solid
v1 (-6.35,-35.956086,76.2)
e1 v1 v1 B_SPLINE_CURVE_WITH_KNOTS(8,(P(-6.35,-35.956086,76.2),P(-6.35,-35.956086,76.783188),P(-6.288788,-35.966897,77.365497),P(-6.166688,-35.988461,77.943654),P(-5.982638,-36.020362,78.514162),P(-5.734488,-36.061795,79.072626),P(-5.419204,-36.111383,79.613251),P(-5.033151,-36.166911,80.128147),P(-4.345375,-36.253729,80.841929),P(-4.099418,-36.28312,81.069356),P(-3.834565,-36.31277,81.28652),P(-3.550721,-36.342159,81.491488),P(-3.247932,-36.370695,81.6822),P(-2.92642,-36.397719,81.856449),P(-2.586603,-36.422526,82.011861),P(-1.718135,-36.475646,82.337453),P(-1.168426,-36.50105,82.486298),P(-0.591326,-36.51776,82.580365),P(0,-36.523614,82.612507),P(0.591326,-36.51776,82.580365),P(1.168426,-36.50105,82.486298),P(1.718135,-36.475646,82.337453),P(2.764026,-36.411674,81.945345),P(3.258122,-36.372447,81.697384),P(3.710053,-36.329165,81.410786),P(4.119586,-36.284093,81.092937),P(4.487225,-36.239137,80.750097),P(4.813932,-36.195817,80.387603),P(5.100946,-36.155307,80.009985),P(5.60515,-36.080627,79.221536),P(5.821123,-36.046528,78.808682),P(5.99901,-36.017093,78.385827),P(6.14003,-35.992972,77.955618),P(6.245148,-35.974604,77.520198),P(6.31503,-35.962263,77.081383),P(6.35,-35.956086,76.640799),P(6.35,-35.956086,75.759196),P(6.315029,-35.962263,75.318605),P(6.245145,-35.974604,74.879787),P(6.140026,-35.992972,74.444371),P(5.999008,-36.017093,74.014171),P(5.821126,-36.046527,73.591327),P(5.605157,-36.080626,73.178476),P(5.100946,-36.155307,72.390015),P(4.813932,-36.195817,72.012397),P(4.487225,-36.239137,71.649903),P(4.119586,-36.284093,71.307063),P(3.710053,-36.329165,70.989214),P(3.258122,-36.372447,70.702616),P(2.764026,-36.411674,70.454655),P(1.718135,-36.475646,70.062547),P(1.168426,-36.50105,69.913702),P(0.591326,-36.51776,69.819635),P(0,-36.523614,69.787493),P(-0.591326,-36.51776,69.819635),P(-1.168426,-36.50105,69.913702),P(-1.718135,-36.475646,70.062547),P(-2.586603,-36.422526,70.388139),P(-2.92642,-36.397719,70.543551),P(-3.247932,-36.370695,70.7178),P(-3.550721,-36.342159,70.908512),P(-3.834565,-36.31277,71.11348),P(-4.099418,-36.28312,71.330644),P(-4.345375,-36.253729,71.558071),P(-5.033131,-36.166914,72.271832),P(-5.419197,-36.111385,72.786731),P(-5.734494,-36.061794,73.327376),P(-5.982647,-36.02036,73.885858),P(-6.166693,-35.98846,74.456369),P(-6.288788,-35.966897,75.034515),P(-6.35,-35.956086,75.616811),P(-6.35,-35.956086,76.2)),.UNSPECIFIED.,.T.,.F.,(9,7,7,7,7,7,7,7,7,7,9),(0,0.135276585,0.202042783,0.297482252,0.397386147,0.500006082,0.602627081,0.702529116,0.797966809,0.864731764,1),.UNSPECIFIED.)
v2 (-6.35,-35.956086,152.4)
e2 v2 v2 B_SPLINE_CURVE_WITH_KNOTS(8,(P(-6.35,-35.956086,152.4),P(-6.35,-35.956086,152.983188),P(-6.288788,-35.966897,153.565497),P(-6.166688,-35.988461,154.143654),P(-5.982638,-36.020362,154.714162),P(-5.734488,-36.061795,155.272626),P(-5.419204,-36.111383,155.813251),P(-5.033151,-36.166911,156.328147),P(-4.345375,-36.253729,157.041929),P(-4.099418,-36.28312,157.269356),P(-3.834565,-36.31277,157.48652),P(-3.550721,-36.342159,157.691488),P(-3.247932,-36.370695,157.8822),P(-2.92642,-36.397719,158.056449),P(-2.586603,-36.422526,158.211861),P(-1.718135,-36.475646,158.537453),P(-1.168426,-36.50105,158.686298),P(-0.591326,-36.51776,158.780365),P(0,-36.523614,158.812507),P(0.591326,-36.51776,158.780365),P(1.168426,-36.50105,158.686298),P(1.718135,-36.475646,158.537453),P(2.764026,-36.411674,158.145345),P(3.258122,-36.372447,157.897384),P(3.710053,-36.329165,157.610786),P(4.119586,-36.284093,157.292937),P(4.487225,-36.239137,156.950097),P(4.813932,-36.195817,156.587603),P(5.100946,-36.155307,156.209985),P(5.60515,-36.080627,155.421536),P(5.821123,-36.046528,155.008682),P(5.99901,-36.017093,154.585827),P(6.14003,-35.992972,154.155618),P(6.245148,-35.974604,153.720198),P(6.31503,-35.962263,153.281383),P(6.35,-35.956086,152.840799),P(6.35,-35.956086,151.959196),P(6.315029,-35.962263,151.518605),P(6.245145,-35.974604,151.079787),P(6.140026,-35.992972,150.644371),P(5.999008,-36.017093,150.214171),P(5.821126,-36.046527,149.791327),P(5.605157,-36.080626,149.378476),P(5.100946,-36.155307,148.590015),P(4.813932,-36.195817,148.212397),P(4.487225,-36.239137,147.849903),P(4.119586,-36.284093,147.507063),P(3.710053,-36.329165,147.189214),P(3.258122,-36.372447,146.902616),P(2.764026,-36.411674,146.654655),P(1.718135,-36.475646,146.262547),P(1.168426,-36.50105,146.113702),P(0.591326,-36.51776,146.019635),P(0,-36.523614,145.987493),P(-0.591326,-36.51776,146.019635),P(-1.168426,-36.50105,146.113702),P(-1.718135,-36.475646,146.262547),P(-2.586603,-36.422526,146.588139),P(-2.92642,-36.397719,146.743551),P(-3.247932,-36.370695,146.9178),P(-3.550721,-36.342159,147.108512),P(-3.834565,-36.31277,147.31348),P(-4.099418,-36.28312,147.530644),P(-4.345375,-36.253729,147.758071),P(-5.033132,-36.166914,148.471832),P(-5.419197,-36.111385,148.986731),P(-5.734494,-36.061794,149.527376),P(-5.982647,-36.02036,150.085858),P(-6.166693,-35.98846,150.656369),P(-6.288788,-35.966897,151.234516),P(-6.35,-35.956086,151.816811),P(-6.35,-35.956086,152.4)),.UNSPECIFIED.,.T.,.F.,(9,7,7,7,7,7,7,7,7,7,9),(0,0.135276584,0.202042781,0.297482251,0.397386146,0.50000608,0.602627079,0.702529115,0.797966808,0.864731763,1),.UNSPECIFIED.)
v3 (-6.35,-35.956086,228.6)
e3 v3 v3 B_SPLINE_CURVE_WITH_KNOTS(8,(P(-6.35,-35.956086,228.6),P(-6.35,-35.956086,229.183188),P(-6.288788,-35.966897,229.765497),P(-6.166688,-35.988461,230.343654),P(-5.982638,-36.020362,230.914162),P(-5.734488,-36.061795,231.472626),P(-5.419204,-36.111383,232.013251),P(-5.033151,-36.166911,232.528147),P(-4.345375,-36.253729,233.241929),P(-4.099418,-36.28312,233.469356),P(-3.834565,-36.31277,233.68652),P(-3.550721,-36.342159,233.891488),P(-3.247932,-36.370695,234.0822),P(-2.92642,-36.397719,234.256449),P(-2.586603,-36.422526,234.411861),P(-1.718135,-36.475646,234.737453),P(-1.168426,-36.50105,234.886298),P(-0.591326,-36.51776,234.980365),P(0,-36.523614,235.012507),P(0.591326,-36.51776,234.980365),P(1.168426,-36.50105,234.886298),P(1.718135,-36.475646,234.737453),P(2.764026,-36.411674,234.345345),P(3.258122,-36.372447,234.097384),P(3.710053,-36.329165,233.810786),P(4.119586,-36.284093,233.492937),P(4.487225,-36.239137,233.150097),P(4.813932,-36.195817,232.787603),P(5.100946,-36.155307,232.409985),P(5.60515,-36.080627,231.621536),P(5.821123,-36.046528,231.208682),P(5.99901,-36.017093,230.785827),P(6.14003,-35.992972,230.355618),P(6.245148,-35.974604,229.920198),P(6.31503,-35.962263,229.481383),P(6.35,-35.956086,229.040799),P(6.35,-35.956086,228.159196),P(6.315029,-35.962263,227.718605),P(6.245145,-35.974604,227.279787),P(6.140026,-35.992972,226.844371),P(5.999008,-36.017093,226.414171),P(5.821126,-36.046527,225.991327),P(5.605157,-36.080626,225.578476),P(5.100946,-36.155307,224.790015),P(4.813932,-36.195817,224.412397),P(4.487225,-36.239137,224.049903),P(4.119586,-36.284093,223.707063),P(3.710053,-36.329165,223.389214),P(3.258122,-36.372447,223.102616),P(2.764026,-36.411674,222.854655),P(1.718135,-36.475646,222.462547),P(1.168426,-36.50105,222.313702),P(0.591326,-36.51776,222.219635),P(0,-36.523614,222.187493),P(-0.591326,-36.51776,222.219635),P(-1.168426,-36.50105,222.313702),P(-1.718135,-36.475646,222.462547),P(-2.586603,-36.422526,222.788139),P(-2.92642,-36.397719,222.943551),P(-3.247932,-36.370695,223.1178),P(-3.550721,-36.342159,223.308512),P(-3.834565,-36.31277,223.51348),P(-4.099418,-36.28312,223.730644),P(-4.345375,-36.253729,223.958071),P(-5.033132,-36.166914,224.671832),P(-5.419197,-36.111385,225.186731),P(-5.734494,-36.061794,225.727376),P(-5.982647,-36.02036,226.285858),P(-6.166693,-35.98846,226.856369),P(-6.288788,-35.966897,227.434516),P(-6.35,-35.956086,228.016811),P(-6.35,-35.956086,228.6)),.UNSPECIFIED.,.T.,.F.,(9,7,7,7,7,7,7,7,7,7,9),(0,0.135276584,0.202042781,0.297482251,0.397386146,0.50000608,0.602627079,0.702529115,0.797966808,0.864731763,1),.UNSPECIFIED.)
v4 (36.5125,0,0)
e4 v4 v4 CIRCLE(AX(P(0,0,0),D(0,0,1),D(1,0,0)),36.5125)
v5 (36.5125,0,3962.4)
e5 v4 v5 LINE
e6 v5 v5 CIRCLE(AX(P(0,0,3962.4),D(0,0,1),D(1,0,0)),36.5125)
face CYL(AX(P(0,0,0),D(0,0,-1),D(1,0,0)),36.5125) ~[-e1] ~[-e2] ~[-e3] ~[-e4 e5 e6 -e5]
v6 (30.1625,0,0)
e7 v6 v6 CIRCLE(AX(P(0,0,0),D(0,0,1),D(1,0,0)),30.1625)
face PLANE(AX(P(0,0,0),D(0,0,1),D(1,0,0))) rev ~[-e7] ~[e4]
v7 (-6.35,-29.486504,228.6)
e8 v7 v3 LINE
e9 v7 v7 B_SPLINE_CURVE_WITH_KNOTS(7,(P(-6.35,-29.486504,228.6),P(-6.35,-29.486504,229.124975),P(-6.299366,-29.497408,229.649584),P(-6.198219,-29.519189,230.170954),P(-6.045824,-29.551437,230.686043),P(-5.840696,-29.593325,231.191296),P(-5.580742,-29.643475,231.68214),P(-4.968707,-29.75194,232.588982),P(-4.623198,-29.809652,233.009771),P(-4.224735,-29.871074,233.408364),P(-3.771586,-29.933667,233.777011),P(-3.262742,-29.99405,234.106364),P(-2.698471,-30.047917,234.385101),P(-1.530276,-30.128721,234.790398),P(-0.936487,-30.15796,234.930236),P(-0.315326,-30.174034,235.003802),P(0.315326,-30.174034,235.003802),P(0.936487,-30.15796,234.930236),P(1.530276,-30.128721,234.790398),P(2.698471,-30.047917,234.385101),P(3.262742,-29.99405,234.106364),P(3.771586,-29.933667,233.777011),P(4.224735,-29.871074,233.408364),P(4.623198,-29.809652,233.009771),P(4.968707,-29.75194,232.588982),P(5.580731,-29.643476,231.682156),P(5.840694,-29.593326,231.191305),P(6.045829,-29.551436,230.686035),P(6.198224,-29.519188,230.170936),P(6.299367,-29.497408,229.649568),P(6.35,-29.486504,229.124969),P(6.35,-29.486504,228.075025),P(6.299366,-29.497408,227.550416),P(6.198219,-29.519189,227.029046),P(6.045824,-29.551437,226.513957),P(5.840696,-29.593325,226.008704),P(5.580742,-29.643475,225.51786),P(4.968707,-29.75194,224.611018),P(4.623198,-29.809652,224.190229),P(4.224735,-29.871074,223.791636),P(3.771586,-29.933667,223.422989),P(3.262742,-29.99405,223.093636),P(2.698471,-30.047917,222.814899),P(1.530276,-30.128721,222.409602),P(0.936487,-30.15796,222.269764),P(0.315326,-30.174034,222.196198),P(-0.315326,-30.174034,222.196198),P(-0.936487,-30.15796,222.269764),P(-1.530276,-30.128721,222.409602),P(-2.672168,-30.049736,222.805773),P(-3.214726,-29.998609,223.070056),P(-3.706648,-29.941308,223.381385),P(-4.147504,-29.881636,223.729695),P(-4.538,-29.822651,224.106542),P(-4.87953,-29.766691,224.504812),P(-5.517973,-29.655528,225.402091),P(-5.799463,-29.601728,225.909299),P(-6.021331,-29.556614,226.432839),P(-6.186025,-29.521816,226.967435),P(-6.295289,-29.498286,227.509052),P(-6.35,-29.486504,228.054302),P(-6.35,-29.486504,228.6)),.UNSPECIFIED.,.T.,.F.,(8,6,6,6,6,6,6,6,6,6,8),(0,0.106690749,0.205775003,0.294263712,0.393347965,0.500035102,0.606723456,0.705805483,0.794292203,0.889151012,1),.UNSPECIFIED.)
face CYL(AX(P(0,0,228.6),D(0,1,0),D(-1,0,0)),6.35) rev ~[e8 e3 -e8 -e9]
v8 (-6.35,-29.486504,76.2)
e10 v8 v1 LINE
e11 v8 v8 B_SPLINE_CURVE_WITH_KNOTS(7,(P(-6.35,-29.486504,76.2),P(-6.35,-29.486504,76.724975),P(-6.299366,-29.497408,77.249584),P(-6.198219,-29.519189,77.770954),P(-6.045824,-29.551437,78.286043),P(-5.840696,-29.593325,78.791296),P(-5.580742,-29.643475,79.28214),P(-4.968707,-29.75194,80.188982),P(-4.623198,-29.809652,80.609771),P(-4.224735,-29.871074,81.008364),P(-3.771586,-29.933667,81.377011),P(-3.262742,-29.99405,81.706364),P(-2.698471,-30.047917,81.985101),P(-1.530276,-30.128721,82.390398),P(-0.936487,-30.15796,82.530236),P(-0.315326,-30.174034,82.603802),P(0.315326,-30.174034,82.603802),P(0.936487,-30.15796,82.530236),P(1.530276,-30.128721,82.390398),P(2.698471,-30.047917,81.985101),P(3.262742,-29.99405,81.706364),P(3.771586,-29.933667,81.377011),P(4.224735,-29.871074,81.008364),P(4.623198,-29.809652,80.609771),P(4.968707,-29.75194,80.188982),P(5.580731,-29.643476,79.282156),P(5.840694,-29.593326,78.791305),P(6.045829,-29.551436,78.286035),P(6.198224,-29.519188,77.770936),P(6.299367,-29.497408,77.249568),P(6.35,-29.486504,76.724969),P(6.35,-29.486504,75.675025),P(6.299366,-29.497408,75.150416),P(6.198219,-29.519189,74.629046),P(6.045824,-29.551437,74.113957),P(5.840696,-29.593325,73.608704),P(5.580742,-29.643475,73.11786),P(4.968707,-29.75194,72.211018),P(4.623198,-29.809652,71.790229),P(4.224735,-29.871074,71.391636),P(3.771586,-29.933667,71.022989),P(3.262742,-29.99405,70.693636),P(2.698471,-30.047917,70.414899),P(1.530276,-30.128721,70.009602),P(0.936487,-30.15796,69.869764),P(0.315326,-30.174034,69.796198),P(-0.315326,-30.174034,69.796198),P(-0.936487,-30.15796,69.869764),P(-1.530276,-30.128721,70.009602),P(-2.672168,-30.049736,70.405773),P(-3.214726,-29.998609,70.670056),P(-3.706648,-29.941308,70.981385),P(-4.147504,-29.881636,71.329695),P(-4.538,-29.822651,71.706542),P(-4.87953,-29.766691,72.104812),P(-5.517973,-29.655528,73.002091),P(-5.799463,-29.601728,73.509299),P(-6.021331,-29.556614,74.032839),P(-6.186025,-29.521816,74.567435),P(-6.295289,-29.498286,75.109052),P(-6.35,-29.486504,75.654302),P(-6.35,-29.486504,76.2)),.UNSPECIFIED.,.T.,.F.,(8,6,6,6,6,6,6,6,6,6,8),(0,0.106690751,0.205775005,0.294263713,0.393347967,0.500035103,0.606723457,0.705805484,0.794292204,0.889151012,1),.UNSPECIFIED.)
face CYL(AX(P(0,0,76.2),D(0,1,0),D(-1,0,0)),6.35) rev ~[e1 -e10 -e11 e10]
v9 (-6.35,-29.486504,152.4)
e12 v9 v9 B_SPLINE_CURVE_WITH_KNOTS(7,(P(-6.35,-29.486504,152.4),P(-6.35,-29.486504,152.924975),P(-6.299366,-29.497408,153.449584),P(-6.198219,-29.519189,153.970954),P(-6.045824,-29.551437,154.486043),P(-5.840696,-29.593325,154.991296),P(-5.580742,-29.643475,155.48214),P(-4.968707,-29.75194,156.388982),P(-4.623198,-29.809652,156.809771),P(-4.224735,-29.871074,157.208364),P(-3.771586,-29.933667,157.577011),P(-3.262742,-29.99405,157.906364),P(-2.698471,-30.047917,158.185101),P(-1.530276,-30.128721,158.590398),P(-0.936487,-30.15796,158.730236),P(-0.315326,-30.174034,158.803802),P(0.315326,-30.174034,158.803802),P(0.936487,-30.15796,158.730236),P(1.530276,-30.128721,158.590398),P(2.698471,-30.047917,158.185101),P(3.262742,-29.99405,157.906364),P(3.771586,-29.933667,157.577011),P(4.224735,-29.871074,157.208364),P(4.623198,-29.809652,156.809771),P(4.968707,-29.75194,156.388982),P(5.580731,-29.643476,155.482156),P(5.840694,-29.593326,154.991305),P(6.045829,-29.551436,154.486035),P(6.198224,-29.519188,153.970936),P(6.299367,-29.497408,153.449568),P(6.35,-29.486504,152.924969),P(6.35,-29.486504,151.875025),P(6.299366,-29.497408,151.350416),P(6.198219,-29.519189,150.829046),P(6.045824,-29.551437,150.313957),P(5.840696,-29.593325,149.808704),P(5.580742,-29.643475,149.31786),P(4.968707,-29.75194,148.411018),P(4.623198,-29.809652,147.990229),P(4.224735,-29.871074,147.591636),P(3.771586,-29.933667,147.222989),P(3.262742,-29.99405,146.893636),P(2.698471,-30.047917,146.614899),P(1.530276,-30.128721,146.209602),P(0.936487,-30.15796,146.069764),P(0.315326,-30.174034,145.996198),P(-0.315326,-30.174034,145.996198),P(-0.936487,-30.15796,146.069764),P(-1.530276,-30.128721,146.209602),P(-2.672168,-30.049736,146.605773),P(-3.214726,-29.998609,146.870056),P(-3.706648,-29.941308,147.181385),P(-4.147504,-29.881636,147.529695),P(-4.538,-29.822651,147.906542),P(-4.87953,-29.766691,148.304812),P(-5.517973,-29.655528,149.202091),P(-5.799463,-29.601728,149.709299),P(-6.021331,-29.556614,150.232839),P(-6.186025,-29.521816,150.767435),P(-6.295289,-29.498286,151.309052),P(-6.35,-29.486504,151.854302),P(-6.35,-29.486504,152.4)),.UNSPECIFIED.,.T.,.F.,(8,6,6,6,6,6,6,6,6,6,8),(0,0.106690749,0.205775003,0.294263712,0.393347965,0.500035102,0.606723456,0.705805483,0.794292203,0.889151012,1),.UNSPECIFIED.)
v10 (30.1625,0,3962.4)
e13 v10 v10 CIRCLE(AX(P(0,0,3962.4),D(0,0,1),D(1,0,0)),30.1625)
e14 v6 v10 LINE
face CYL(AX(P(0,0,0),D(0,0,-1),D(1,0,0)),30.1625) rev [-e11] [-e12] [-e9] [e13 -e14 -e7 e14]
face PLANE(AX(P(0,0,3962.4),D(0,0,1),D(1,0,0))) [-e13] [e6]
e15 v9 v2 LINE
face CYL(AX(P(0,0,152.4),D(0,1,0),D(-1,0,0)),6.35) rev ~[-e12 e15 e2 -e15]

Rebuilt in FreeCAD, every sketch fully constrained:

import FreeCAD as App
import Part
import Sketcher

V = App.Vector
Q = App.Units.Quantity

doc = App.newDocument("Part")
params = doc.addObject("Spreadsheet::Sheet", "Params")
for row, (alias, value) in enumerate([
    ("sketch1_diameter", "2.875 in"),
    ("sketch1_diameter2", "2.375 in"),
    ("pad1_length", "156 in"),
    ("sketch2_diameter", "0.5 in"),
    ("pocket1_length", "37.5125 mm"),
], start=1):
    params.set(f"A{row}", alias)
    params.set(f"B{row}", "=" + value)
    params.setAlias(f"B{row}", alias)

body = doc.addObject("PartDesign::Body", "Body")

# Sketch on XY plane
sketch1 = doc.addObject("Sketcher::SketchObject", "Sketch")
body.addObject(sketch1)
sketch1.AttachmentSupport = (doc.XY_Plane, [""])
sketch1.MapMode = "FlatFace"
sketch1.addGeometry(Part.Circle(V(0, 0, 0), V(0, 0, 1), 37), False)
sketch1.addGeometry(Part.Circle(V(0, 0, 0), V(0, 0, 1), 30), False)
sketch1.addConstraint(Sketcher.Constraint("Coincident", 0, 3, -1, 1))
sketch1.addConstraint(Sketcher.Constraint("Coincident", 1, 3, -1, 1))
sketch1.addConstraint(Sketcher.Constraint("Diameter", 0, Q("2.875 in")))
sketch1.addConstraint(Sketcher.Constraint("Diameter", 1, Q("2.375 in")))
sketch1.setExpression("Constraints[2]", "Params.sketch1_diameter")
sketch1.setExpression("Constraints[3]", "Params.sketch1_diameter2")
pad1 = doc.addObject("PartDesign::Pad", "Pad")
body.addObject(pad1)
pad1.Profile = sketch1
pad1.setExpression("Length", "Params.pad1_length")

# Sketch on XZ plane
sketch2 = doc.addObject("Sketcher::SketchObject", "Sketch001")
body.addObject(sketch2)
sketch2.AttachmentSupport = (doc.XZ_Plane, [""])
sketch2.MapMode = "FlatFace"
sketch2.addGeometry(Part.Circle(V(0, 76, 0), V(0, 0, 1), 6), False)
sketch2.addGeometry(Part.Circle(V(0, 152, 0), V(0, 0, 1), 6), False)
sketch2.addGeometry(Part.Circle(V(0, 229, 0), V(0, 0, 1), 6), False)
sketch2.addConstraint(Sketcher.Constraint("Equal", 0, 1))
sketch2.addConstraint(Sketcher.Constraint("Equal", 1, 2))
sketch2.addConstraint(Sketcher.Constraint("PointOnObject", 0, 3, -2))
sketch2.addConstraint(Sketcher.Constraint("PointOnObject", 1, 3, -2))
sketch2.addConstraint(Sketcher.Constraint("PointOnObject", 2, 3, -2))
sketch2.addConstraint(Sketcher.Constraint("Diameter", 0, Q("0.5 in")))
sketch2.addConstraint(Sketcher.Constraint("DistanceY", -1, 1, 0, 3, Q("3 in")))
sketch2.addConstraint(Sketcher.Constraint("DistanceY", -1, 1, 1, 3, Q("6 in")))
sketch2.addConstraint(Sketcher.Constraint("DistanceY", -1, 1, 2, 3, Q("9 in")))
sketch2.setExpression("Constraints[5]", "Params.sketch2_diameter")
pocket1 = doc.addObject("PartDesign::Pocket", "Pocket")
body.addObject(pocket1)
pocket1.Profile = sketch2
pocket1.setExpression("Length", "Params.pocket1_length")
pocket1.Reversed = True

doc.recompute()
